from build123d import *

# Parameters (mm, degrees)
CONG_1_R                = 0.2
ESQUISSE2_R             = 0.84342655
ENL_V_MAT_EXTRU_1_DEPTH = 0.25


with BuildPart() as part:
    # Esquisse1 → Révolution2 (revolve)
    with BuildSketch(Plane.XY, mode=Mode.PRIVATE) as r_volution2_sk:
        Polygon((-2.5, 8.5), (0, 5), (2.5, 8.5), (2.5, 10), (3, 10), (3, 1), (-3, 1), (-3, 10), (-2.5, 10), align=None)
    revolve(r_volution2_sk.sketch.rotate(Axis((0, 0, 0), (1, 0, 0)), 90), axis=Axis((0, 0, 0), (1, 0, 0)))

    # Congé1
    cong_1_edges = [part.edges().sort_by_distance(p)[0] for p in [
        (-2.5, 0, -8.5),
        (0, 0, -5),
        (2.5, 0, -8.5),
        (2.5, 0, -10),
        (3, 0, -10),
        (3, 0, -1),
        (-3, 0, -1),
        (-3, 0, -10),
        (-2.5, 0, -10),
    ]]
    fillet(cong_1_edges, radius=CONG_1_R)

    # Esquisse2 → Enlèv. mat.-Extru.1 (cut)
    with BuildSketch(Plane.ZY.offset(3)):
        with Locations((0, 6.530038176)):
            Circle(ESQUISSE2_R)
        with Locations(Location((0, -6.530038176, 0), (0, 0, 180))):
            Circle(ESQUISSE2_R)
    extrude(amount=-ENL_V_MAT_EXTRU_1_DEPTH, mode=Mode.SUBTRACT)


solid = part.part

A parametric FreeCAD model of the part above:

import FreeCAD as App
import Part
import Sketcher


def edges_at(feature, points):
    """Names of the edges that pass closest to the given points."""
    edges = feature.Shape.Edges
    near = lambda p: min(range(len(edges)), key=lambda i: edges[i].distToShape(Part.Vertex(*p))[0])
    return sorted({f"Edge{near(p) + 1}" for p in points})


def add_polygon(sketch, points):
    """Adds a closed chain of lines whose ends are joined by coincident constraints."""
    first, n = sketch.GeometryCount, len(points)
    for a, b in zip(points, points[1:] + points[:1]):
        sketch.addGeometry(Part.LineSegment(App.Vector(*a, 0), App.Vector(*b, 0)), False)
    for i in range(n):
        sketch.addConstraint(Sketcher.Constraint("Coincident", first + i, 2, first + (i + 1) % n, 1))

doc = App.newDocument("Part")
body = doc.addObject("PartDesign::Body", "Body")

# Sketch on XY plane
sketch1 = body.newObject("Sketcher::SketchObject", "Sketch")
sketch1.AttachmentSupport = (doc.getObject("XY_Plane"), [""])
sketch1.MapMode = "FlatFace"
add_polygon(sketch1, [(0, 5), (-2.5, 8.5), (-2.5, 10), (-3, 10), (-3, 1), (3, 1), (3, 10), (2.5, 10), (2.5, 8.5)])  # lines 0-8
sketch1.addConstraint([
    Sketcher.Constraint("Vertical", 1),
    Sketcher.Constraint("Horizontal", 2),
    Sketcher.Constraint("Vertical", 3),
    Sketcher.Constraint("Horizontal", 4),
    Sketcher.Constraint("Vertical", 5),
    Sketcher.Constraint("Horizontal", 6),
    Sketcher.Constraint("Vertical", 7),
    Sketcher.Constraint("Symmetric", 2, 2, 5, 2, -2),
    Sketcher.Constraint("Symmetric", 0, 2, 7, 2, -2),
    Sketcher.Constraint("PointOnObject", 8, 2, -2),
    Sketcher.Constraint("DistanceX", 4, 1, 4, 2, 6.0),
    Sketcher.Constraint("DistanceY", 3, 2, 3, 1, 9.0),
    Sketcher.Constraint("DistanceX", 2, 2, 2, 1, 0.5),
    Sketcher.Constraint("DistanceY", 1, 1, 1, 2, 1.5),
    Sketcher.Constraint("DistanceY", -1, 1, 1, 2, 10.0),
    Sketcher.Constraint("DistanceY", -1, 1, 8, 2, 5.0),
])
revolution = body.newObject("PartDesign::Revolution", "Revolution")
revolution.Profile = sketch1
revolution.ReferenceAxis = (sketch1, ["H_Axis"])
revolution.Angle = 360
doc.recompute()

fillet = body.newObject("PartDesign::Fillet", "Fillet")
fillet.Base = (revolution, edges_at(revolution, [
    (-2.5, 0, -8.5),
    (0, 0, -5),
    (2.5, 0, -8.5),
    (2.5, 0, -10),
    (3, 0, -10),
    (3, 0, -1),
    (-3, 0, -1),
    (-3, 0, -10),
    (-2.5, 0, -10),
]))
fillet.Radius = 0.2

# Sketch on YZ plane
sketch2 = body.newObject("Sketcher::SketchObject", "Sketch001")
sketch2.AttachmentSupport = (doc.getObject("YZ_Plane"), [""])
sketch2.MapMode = "FlatFace"
sketch2.AttachmentOffset = App.Placement(App.Vector(0, 0, -3), App.Rotation())
sketch2.addGeometry([
    Part.Circle(App.Vector(6.530038, 0, 0), App.Vector(0, 0, 1), 0.843427),
    Part.Circle(App.Vector(-6.530038, 0, 0), App.Vector(0, 0, 1), 0.843427),
], False)
sketch2.addConstraint([
    Sketcher.Constraint("Equal", 0, 1),
    Sketcher.Constraint("Symmetric", 0, 3, 1, 3, -1, 1),
    Sketcher.Constraint("PointOnObject", 0, 3, -1),
    Sketcher.Constraint("Diameter", 0, 1.686853),
    Sketcher.Constraint("DistanceX", -1, 1, 0, 3, 6.530038),
])
pocket1 = body.newObject("PartDesign::Pocket", "Pocket")
pocket1.Profile = sketch2
pocket1.Length = 0.25
pocket1.Reversed = True

doc.recompute()
